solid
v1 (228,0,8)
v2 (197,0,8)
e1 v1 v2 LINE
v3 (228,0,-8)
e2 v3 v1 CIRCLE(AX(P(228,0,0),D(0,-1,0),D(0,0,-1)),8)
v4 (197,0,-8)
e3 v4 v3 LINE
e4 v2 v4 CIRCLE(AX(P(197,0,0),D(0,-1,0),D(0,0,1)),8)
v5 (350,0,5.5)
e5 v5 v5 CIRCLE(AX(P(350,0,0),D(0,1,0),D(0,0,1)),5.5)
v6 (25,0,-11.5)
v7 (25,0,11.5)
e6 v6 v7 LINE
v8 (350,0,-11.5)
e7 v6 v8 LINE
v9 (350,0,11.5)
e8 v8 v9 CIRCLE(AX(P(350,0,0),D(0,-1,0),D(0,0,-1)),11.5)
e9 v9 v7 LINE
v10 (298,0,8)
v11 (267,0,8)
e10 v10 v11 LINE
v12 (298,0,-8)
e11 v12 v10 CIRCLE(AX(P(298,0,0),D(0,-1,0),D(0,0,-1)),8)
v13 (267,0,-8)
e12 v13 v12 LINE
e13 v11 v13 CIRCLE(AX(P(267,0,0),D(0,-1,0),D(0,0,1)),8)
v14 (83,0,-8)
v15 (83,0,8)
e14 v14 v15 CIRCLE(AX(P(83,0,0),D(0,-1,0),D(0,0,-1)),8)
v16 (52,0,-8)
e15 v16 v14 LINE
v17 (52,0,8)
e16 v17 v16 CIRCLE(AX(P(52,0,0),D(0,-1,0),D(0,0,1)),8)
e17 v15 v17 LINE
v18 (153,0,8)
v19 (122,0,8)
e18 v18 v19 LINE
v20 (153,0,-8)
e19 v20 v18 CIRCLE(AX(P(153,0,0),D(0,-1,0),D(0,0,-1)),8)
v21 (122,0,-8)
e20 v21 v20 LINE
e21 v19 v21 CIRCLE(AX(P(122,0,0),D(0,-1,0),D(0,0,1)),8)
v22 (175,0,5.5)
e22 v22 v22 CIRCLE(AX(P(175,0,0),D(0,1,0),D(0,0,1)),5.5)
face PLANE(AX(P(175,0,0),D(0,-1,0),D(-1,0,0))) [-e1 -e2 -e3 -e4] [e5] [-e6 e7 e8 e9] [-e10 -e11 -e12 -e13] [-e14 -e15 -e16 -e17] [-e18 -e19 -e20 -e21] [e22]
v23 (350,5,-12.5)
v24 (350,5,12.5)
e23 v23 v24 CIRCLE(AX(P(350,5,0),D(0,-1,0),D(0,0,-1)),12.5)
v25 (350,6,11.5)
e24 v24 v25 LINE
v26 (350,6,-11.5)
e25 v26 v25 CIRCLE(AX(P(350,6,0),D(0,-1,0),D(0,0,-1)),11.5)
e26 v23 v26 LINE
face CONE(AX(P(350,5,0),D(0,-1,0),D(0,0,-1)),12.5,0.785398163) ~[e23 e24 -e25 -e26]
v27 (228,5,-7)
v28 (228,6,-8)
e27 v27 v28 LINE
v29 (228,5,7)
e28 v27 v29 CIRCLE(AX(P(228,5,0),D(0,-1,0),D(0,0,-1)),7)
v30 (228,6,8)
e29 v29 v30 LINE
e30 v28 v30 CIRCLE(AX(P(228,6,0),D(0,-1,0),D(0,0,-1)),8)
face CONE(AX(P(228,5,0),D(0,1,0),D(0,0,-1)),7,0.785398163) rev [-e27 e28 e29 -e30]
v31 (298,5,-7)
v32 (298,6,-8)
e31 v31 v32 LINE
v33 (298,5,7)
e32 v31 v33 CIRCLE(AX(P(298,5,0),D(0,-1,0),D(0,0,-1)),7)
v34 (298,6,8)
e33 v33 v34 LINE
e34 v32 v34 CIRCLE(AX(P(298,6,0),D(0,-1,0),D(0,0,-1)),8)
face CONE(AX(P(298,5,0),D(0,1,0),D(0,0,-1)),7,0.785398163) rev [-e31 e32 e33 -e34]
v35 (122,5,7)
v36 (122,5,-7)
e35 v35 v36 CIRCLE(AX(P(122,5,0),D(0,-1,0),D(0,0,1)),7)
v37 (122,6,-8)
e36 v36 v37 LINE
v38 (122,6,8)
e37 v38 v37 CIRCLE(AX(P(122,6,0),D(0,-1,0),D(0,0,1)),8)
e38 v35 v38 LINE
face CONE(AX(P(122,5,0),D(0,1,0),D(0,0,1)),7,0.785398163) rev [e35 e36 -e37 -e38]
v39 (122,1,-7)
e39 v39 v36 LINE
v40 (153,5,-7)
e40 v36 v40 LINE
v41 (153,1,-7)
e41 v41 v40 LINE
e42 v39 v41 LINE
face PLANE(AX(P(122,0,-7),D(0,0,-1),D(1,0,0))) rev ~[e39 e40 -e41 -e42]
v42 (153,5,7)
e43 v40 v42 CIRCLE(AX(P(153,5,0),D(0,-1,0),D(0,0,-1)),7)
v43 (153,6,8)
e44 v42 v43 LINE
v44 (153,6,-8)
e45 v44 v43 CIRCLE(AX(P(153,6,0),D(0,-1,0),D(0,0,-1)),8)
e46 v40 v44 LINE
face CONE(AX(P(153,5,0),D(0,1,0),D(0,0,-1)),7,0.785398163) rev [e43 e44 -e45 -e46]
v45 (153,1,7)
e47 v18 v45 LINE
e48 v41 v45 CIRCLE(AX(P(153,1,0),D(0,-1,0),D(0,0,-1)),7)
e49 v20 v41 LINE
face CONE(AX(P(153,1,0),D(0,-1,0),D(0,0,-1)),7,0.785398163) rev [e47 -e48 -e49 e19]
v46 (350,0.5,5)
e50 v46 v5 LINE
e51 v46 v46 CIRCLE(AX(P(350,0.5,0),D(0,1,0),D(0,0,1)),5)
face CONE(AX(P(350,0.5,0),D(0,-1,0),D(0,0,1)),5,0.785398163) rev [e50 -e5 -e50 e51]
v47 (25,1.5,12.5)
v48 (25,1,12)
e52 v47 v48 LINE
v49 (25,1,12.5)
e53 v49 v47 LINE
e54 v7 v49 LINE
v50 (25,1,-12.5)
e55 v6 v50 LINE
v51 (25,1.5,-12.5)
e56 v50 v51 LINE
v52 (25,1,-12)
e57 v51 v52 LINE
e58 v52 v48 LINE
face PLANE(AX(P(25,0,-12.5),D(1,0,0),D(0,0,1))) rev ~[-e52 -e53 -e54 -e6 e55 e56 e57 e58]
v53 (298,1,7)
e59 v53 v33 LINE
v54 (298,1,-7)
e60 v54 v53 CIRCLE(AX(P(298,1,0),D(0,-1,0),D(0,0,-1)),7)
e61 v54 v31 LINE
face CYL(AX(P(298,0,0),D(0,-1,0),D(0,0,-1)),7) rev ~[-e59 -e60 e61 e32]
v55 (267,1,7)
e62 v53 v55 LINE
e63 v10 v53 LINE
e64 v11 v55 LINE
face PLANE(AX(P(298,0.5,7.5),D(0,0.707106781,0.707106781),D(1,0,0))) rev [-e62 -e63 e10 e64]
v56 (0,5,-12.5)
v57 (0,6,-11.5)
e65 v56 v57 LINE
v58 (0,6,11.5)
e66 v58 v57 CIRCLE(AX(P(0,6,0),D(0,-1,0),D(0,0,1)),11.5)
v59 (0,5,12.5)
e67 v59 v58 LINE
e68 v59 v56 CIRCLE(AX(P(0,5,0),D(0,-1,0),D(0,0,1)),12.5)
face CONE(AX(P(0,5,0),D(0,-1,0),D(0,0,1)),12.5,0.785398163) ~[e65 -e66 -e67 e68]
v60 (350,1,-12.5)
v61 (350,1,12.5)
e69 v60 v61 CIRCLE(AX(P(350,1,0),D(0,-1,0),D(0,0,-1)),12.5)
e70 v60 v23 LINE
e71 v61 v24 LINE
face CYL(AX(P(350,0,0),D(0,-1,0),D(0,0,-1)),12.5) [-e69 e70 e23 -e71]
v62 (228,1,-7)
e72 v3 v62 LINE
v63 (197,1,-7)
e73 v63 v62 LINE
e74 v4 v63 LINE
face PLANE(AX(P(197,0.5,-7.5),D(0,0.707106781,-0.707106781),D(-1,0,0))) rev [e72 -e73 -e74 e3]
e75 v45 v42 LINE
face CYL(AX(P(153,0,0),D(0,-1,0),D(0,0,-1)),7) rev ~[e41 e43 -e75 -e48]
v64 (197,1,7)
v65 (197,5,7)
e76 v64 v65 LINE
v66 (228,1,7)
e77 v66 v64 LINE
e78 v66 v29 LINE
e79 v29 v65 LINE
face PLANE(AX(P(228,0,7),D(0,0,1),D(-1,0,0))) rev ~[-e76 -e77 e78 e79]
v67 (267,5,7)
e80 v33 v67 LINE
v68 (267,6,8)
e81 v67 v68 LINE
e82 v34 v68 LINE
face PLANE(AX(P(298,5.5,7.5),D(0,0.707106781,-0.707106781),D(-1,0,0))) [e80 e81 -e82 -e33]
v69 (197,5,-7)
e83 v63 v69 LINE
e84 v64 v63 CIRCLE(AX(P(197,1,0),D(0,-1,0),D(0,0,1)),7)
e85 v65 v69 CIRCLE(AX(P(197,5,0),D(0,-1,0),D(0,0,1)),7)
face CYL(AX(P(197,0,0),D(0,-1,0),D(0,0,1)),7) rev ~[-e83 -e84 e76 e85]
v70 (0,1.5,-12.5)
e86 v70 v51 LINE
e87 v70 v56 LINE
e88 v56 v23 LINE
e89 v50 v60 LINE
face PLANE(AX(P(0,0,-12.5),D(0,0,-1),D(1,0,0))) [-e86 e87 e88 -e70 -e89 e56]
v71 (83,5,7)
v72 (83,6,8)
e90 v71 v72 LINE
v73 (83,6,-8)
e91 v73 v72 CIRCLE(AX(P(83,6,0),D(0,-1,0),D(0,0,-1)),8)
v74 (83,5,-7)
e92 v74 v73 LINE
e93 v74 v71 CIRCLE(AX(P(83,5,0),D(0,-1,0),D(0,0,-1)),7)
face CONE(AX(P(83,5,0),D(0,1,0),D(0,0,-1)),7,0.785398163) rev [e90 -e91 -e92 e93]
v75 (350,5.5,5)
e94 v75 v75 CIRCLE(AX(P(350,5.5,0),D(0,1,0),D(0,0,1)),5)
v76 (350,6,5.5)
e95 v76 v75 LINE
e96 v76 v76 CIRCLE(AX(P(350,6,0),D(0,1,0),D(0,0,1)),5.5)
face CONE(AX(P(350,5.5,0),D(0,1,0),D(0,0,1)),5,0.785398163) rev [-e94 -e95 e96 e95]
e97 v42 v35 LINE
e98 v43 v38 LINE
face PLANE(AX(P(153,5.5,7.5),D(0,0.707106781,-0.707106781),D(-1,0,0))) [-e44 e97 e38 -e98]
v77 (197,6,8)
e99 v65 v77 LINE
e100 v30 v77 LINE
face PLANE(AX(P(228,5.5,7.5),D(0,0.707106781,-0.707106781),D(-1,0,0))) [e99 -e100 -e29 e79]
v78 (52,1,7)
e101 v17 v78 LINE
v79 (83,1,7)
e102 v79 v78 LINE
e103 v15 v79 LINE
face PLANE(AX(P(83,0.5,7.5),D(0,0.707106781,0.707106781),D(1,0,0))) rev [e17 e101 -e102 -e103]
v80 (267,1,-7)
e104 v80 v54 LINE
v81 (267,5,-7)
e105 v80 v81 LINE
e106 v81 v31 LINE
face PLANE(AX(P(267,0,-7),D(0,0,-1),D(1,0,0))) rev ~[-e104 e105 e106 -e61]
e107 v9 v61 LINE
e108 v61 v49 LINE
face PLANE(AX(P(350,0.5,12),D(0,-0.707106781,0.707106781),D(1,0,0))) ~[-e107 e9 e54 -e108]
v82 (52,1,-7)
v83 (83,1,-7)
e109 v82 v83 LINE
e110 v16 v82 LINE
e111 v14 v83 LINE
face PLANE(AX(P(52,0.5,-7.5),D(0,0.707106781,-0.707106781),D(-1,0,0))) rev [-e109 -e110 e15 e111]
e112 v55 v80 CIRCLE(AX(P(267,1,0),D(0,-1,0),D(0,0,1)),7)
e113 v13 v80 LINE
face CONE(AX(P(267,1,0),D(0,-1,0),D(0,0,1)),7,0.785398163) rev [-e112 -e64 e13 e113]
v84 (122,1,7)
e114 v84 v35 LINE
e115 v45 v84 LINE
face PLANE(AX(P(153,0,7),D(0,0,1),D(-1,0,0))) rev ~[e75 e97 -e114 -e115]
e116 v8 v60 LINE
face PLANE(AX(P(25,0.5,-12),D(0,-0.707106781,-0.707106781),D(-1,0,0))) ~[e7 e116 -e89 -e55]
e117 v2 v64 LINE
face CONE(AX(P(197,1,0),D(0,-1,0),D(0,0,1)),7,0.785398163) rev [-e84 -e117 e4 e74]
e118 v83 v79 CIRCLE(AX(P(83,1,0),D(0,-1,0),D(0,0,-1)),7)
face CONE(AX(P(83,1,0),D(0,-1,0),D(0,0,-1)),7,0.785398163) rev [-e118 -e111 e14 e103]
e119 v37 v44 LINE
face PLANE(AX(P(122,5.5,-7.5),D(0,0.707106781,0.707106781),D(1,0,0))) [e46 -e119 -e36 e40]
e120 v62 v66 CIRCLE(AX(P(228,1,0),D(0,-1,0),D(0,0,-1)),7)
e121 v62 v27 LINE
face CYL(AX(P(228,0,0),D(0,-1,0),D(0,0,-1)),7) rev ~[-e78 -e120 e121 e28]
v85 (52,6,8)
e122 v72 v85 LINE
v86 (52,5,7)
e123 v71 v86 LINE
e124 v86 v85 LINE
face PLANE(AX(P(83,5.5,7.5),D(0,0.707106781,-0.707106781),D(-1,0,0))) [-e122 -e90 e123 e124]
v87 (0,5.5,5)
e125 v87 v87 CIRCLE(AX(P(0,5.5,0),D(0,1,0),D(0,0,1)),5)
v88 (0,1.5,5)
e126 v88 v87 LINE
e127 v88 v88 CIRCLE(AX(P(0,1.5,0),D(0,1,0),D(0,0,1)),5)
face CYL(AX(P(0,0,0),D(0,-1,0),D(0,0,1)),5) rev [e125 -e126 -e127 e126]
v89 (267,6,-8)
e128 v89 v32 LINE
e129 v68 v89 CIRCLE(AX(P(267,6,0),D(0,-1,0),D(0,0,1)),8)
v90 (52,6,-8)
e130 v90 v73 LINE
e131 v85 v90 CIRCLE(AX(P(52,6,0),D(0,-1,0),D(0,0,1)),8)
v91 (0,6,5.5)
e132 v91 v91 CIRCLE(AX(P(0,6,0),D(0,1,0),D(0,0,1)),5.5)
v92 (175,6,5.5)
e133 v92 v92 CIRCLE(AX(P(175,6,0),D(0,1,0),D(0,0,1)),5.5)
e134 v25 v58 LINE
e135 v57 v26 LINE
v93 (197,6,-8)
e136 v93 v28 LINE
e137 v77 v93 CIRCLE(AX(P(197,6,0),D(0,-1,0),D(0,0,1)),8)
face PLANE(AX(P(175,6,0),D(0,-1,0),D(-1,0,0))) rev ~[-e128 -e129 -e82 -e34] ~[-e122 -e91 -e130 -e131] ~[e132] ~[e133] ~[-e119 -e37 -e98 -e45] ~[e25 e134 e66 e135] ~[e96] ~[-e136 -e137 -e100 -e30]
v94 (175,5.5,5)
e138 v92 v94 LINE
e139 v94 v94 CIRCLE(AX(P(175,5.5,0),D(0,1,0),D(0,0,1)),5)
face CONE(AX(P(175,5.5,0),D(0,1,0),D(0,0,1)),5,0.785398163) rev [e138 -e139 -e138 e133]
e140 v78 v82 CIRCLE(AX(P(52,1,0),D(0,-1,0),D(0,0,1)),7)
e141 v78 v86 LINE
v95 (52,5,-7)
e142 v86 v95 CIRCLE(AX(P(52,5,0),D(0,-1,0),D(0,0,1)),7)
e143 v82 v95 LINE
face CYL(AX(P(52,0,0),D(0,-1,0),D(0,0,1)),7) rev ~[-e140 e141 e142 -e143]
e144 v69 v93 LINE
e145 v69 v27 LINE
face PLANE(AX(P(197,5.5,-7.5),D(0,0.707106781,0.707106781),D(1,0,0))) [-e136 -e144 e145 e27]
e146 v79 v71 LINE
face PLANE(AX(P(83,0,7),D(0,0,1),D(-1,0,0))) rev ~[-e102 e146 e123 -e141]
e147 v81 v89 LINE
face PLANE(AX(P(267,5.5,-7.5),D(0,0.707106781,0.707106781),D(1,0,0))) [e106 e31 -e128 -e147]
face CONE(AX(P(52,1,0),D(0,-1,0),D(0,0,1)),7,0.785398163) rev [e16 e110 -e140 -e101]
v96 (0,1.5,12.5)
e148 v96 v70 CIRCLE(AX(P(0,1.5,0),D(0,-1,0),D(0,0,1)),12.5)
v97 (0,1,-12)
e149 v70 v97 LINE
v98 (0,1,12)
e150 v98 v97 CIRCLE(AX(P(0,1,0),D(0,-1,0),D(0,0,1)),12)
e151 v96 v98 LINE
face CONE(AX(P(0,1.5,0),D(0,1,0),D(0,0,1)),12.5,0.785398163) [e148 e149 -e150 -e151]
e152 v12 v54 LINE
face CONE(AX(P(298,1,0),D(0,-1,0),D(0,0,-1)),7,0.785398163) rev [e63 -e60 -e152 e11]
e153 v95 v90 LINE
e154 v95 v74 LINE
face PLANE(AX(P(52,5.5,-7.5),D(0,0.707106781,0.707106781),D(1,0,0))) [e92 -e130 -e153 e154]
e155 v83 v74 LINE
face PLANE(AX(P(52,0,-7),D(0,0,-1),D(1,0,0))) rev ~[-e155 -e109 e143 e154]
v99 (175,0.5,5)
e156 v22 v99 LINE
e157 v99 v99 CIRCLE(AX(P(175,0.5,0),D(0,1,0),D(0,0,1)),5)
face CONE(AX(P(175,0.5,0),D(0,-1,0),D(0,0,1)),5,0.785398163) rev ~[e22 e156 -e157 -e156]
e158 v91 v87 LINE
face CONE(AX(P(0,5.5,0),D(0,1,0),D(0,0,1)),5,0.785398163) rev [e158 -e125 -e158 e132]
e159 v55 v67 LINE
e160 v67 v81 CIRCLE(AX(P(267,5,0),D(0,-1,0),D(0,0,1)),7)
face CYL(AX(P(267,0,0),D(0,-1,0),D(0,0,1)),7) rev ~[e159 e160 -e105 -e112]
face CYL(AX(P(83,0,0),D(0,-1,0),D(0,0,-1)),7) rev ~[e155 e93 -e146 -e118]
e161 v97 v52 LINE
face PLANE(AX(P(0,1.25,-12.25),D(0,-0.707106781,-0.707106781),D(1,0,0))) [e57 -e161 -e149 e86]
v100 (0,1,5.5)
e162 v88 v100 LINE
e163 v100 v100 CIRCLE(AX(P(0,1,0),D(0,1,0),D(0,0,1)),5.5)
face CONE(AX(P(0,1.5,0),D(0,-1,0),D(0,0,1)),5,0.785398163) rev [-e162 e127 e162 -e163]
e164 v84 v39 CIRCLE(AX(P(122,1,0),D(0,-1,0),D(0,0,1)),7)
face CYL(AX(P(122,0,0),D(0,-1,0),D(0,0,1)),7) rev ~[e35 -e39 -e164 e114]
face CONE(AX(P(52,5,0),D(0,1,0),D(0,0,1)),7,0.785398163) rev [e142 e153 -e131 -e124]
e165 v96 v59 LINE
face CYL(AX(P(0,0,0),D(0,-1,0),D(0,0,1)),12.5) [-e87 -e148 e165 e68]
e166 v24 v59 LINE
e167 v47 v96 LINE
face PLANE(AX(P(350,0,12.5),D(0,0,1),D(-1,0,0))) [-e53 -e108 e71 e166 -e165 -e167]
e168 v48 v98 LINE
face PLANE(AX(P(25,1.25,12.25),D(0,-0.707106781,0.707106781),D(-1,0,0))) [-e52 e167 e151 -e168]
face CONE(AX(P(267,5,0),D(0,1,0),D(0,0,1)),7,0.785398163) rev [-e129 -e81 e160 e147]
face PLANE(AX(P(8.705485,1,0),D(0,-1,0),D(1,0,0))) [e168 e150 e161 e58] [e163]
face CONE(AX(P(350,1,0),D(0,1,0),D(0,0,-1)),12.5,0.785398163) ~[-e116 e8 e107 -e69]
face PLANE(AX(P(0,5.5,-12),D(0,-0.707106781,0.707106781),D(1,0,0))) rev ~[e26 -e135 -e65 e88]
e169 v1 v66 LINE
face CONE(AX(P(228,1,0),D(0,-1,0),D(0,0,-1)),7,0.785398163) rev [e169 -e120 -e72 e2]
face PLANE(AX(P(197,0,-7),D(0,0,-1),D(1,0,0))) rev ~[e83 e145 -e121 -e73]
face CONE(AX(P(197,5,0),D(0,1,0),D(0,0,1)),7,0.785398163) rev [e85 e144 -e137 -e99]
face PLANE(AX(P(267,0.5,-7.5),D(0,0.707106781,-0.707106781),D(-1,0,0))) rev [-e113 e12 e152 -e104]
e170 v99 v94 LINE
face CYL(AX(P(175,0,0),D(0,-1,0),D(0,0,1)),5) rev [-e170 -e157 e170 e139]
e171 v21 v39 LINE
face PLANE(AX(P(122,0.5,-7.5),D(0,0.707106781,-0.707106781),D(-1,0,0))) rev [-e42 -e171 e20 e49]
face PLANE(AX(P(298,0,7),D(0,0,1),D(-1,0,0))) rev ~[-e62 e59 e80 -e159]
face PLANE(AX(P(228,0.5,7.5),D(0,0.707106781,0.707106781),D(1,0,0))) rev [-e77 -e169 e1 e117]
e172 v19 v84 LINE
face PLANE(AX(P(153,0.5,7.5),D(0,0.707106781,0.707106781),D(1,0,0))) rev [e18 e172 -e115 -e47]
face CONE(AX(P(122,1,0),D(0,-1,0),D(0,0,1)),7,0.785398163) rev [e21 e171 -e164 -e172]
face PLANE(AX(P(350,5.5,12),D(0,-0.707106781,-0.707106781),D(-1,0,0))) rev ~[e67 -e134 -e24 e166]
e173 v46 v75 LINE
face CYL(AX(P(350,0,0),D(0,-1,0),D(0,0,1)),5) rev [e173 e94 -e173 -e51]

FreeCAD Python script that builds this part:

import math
import FreeCAD as App
import Part
import Sketcher

V = App.Vector


def edges_at(feature, points):
    """Names of the edges that pass closest to the given points."""
    edges = feature.Shape.Edges
    near = lambda p: min(range(len(edges)), key=lambda i: edges[i].distToShape(Part.Vertex(*p))[0])
    return sorted({f"Edge{near(p) + 1}" for p in points})

doc = App.newDocument("Part")
body = doc.addObject("PartDesign::Body", "Body")

sketch1 = body.newObject("Sketcher::SketchObject", "Sketch")
sketch1.AttachmentSupport = (doc.getObject("XZ_Plane"), [""])
sketch1.MapMode = "FlatFace"
sketch1.addGeometry([
    Part.LineSegment(V(350, -12, 0), V(0, -12, 0)),
    Part.ArcOfCircle(Part.Circle(V(0, 0, 0), V(0, 0, 1), 12), math.radians(90), math.radians(270)),
    Part.LineSegment(V(0, 12, 0), V(350, 12, 0)),
    Part.ArcOfCircle(Part.Circle(V(350, 0, 0), V(0, 0, 1), 12), math.radians(-90), math.radians(90)),
    Part.Circle(V(350, 0, 0), V(0, 0, 1), 5),
    Part.LineSegment(V(267, -7, 0), V(298, -7, 0)),
    Part.ArcOfCircle(Part.Circle(V(298, 0, 0), V(0, 0, 1), 7), math.radians(-90), math.radians(90)),
    Part.LineSegment(V(298, 7, 0), V(267, 7, 0)),
    Part.ArcOfCircle(Part.Circle(V(267, 0, 0), V(0, 0, 1), 7), math.radians(90), math.radians(270)),
    Part.LineSegment(V(197, -7, 0), V(228, -7, 0)),
    Part.ArcOfCircle(Part.Circle(V(228, 0, 0), V(0, 0, 1), 7), math.radians(-90), math.radians(90)),
    Part.LineSegment(V(228, 7, 0), V(197, 7, 0)),
    Part.ArcOfCircle(Part.Circle(V(197, 0, 0), V(0, 0, 1), 7), math.radians(90), math.radians(270)),
    Part.Circle(V(175, 0, 0), V(0, 0, 1), 5),
    Part.LineSegment(V(122, -7, 0), V(153, -7, 0)),
    Part.ArcOfCircle(Part.Circle(V(153, 0, 0), V(0, 0, 1), 7), math.radians(-90), math.radians(90)),
    Part.LineSegment(V(153, 7, 0), V(122, 7, 0)),
    Part.ArcOfCircle(Part.Circle(V(122, 0, 0), V(0, 0, 1), 7), math.radians(90), math.radians(270)),
    Part.LineSegment(V(52, -7, 0), V(83, -7, 0)),
    Part.ArcOfCircle(Part.Circle(V(83, 0, 0), V(0, 0, 1), 7), math.radians(-90), math.radians(90)),
    Part.LineSegment(V(83, 7, 0), V(52, 7, 0)),
    Part.ArcOfCircle(Part.Circle(V(52, 0, 0), V(0, 0, 1), 7), math.radians(90), math.radians(270)),
    Part.Circle(V(0, 0, 0), V(0, 0, 1), 5),
], False)
sketch1.addConstraint([
    Sketcher.Constraint("Tangent", 0, 2, 1, 2),
    Sketcher.Constraint("Tangent", 1, 1, 2, 1),
    Sketcher.Constraint("Tangent", 2, 2, 3, 2),
    Sketcher.Constraint("Tangent", 3, 1, 0, 1),
    Sketcher.Constraint("Tangent", 5, 2, 6, 1),
    Sketcher.Constraint("Tangent", 6, 2, 7, 1),
    Sketcher.Constraint("Tangent", 7, 2, 8, 1),
    Sketcher.Constraint("Tangent", 8, 2, 5, 1),
    Sketcher.Constraint("Tangent", 9, 2, 10, 1),
    Sketcher.Constraint("Tangent", 10, 2, 11, 1),
    Sketcher.Constraint("Tangent", 11, 2, 12, 1),
    Sketcher.Constraint("Tangent", 12, 2, 9, 1),
    Sketcher.Constraint("Tangent", 14, 2, 15, 1),
    Sketcher.Constraint("Tangent", 15, 2, 16, 1),
    Sketcher.Constraint("Tangent", 16, 2, 17, 1),
    Sketcher.Constraint("Tangent", 17, 2, 14, 1),
    Sketcher.Constraint("Tangent", 18, 2, 19, 1),
    Sketcher.Constraint("Tangent", 19, 2, 20, 1),
    Sketcher.Constraint("Tangent", 20, 2, 21, 1),
    Sketcher.Constraint("Tangent", 21, 2, 18, 1),
    Sketcher.Constraint("Horizontal", 0),
    Sketcher.Constraint("Horizontal", 2),
    Sketcher.Constraint("Horizontal", 5),
    Sketcher.Constraint("Horizontal", 7),
    Sketcher.Constraint("Horizontal", 9),
    Sketcher.Constraint("Horizontal", 11),
    Sketcher.Constraint("Horizontal", 14),
    Sketcher.Constraint("Horizontal", 16),
    Sketcher.Constraint("Horizontal", 18),
    Sketcher.Constraint("Horizontal", 20),
    Sketcher.Constraint("Coincident", 1, 3, -1, 1),
    Sketcher.Constraint("Coincident", 22, 3, -1, 1),
    Sketcher.Constraint("Coincident", 4, 3, 3, 3),
    Sketcher.Constraint("Equal", 8, 10),
    Sketcher.Constraint("Equal", 4, 13),
    Sketcher.Constraint("Equal", 12, 15),
    Sketcher.Constraint("Equal", 17, 19),
    Sketcher.Constraint("Equal", 13, 22),
    Sketcher.Constraint("PointOnObject", 6, 3, -1),
    Sketcher.Constraint("PointOnObject", 10, 3, -1),
    Sketcher.Constraint("PointOnObject", 13, 3, -1),
    Sketcher.Constraint("PointOnObject", 15, 3, -1),
    Sketcher.Constraint("PointOnObject", 19, 3, -1),
    Sketcher.Constraint("Equal", 7, 9),
    Sketcher.Constraint("Equal", 11, 14),
    Sketcher.Constraint("Equal", 16, 18),
    Sketcher.Constraint("Diameter", 4, 10.0),
    Sketcher.Constraint("Radius", 6, 7.0),
    Sketcher.Constraint("Radius", 1, 12.5),
    Sketcher.Constraint("DistanceX", 0, 2, 0, 1, 350.0),
    Sketcher.Constraint("DistanceX", 5, 1, 5, 2, 31.0),
    Sketcher.Constraint("DistanceX", -1, 1, 6, 3, 298.0),
    Sketcher.Constraint("DistanceX", -1, 1, 10, 3, 228.0),
    Sketcher.Constraint("DistanceX", -1, 1, 13, 3, 175.0),
    Sketcher.Constraint("DistanceX", -1, 1, 15, 3, 153.0),
    Sketcher.Constraint("DistanceX", -1, 1, 19, 3, 83.0),
])
pad1 = body.newObject("PartDesign::Pad", "Pad")
pad1.Profile = sketch1
pad1.Length = 6
pad1.Reversed = True

sketch2 = body.newObject("Sketcher::SketchObject", "Sketch001")
sketch2.AttachmentSupport = (doc.getObject("XZ_Plane"), [""])
sketch2.MapMode = "FlatFace"
sketch2.addGeometry([
    Part.LineSegment(V(0, -12, 0), V(25, -12, 0)),
    Part.LineSegment(V(25, -12, 0), V(25, 12, 0)),
    Part.LineSegment(V(25, 12, 0), V(0, 12, 0)),
    Part.ArcOfCircle(Part.Circle(V(0, 0, 0), V(0, 0, 1), 12), math.radians(90), math.radians(270)),
    Part.Circle(V(0, 0, 0), V(0, 0, 1), 5),
], False)
sketch2.addConstraint([
    Sketcher.Constraint("Coincident", 0, 2, 1, 1),
    Sketcher.Constraint("Coincident", 1, 2, 2, 1),
    Sketcher.Constraint("Tangent", 2, 2, 3, 1),
    Sketcher.Constraint("Tangent", 3, 2, 0, 1),
    Sketcher.Constraint("Horizontal", 0),
    Sketcher.Constraint("Vertical", 1),
    Sketcher.Constraint("Horizontal", 2),
    Sketcher.Constraint("Coincident", 3, 3, -1, 1),
    Sketcher.Constraint("Coincident", 4, 3, -1, 1),
    Sketcher.Constraint("Equal", 2, 1),
    Sketcher.Constraint("Diameter", 4, 10.0),
    Sketcher.Constraint("Radius", 3, 12.5),
])
pocket1 = body.newObject("PartDesign::Pocket", "Pocket")
pocket1.Profile = sketch2
pocket1.Length = 1
doc.recompute()

chamfer = body.newObject("PartDesign::Chamfer", "Chamfer")
chamfer.Base = (pocket1, edges_at(pocket1, [(-12.5, 1, 0), (12.5, 1, 12.5), (12.5, 1, -12.5)]))
chamfer.Size = 0.5
doc.recompute()

chamfer2 = body.newObject("PartDesign::Chamfer", "Chamfer001")
chamfer2.Base = (chamfer, edges_at(chamfer, [
    (190, 0, 0),
    (212.5, 0, 7),
    (235, 0, 0),
    (212.5, 0, -7),
    (190, 6, 0),
    (212.5, 6, 7),
    (235, 6, 0),
    (212.5, 6, -7),
    (45, 0, 0),
    (67.5, 0, 7),
    (90, 0, 0),
    (67.5, 0, -7),
    (45, 6, 0),
    (67.5, 6, 7),
    (90, 6, 0),
    (67.5, 6, -7),
    (160, 0, 0),
    (137.5, 0, -7),
    (115, 0, 0),
    (137.5, 0, 7),
    (160, 6, 0),
    (137.5, 6, -7),
    (115, 6, 0),
    (137.5, 6, 7),
    (305, 0, 0),
    (282.5, 0, -7),
    (260, 0, 0),
    (282.5, 0, 7),
    (305, 6, 0),
    (282.5, 6, -7),
    (260, 6, 0),
    (282.5, 6, 7),
]))
chamfer2.Size = 1
doc.recompute()

chamfer3 = body.newObject("PartDesign::Chamfer", "Chamfer002")
chamfer3.Base = (chamfer2, edges_at(chamfer2, [(187.5, 0, -12.5), (362.5, 0, 0), (187.5, 0, 12.5)]))
chamfer3.Size = 1
doc.recompute()

chamfer4 = body.newObject("PartDesign::Chamfer", "Chamfer003")
chamfer4.Base = (chamfer3, edges_at(chamfer3, [
    (362.5, 6, 0),
    (175, 6, -12.5),
    (-12.5, 6, 0),
    (175, 6, 12.5),
]))
chamfer4.Size = 1
doc.recompute()

chamfer5 = body.newObject("PartDesign::Chamfer", "Chamfer004")
chamfer5.Base = (chamfer4, edges_at(chamfer4, [(175, 0, -5), (175, 6, -5)]))
chamfer5.Size = 0.5
doc.recompute()

chamfer6 = body.newObject("PartDesign::Chamfer", "Chamfer005")
chamfer6.Base = (chamfer5, edges_at(chamfer5, [
    (350, 0, -5),
    (350, 6, -5),
    (0, 6, -5),
    (0, 1, -5),
]))
chamfer6.Size = 0.5

doc.recompute()
